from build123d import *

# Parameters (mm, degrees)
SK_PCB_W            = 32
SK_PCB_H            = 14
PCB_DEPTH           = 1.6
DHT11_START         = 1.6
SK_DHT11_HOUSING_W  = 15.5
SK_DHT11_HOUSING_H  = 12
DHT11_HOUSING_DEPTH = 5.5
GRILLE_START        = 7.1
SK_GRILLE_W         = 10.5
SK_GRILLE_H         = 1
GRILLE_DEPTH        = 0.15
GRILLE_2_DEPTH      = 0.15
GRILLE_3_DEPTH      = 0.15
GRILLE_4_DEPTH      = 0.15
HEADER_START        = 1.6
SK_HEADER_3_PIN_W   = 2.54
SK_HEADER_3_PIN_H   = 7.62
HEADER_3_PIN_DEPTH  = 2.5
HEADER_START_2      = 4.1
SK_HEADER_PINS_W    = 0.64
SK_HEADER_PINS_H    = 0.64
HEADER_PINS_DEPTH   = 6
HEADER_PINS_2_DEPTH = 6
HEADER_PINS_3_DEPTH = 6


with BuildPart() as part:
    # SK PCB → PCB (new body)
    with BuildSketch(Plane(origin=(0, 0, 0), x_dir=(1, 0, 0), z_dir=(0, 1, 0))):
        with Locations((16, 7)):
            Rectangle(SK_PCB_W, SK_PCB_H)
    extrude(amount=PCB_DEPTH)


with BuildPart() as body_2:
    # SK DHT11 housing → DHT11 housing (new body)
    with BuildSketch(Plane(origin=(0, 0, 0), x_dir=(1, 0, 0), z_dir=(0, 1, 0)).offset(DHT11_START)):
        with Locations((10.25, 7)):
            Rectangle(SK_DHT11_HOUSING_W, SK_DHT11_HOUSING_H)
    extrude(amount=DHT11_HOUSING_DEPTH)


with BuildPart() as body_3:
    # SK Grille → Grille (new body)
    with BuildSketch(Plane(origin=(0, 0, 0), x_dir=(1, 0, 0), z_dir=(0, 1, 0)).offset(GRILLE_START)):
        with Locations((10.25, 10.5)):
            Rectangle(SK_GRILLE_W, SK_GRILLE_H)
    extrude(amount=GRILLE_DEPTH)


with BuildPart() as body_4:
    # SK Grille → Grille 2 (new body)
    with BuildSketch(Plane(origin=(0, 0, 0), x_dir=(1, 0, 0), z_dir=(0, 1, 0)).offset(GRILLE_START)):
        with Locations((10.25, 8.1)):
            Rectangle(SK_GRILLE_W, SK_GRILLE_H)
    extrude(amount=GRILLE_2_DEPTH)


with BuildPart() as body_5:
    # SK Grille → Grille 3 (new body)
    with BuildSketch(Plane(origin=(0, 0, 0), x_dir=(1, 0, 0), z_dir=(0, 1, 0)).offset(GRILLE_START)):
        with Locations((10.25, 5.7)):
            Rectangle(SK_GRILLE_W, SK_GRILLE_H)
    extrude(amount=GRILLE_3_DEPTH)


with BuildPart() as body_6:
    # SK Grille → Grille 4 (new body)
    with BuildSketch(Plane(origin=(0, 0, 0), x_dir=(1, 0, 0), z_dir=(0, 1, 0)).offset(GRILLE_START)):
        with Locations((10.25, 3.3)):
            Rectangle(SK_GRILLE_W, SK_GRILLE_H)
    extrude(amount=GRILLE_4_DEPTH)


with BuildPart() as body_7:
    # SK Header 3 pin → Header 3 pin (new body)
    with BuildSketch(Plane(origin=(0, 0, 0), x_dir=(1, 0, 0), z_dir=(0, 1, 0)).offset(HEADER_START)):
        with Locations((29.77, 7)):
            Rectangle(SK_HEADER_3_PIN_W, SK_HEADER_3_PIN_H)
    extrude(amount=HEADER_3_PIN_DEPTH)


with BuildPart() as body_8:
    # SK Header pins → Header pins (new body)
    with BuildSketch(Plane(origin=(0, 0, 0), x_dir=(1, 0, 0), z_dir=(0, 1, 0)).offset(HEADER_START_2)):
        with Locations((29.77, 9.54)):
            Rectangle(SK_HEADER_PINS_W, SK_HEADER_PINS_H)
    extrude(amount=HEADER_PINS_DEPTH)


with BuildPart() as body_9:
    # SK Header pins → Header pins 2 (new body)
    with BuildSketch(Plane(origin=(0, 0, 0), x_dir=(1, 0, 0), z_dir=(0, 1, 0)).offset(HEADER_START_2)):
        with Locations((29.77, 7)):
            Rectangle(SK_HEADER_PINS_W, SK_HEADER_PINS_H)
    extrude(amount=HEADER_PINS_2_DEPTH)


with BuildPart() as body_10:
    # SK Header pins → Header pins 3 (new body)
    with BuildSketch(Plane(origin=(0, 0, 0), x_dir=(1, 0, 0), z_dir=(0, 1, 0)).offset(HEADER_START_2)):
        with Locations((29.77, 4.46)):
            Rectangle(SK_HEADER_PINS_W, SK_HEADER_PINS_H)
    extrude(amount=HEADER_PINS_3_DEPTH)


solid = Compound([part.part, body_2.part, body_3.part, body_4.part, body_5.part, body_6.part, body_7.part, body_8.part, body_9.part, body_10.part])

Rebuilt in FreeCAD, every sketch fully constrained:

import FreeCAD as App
import Part
import Sketcher
from FreeCAD import Vector
Q = App.Units.Quantity

doc = App.newDocument("Part")
params = doc.addObject("Spreadsheet::Sheet", "Params")
for row, (alias, value) in enumerate([
    ("sketch1_width", "32 mm"),
    ("sketch1_height", "14 mm"),
    ("pad1_length", "1.6 mm"),
    ("sketch2_height", "12 mm"),
    ("sketch2_width", "15.5 mm"),
    ("pad2_length", "5.5 mm"),
    ("sketch3_height", "1 mm"),
    ("sketch3_width", "10.5 mm"),
    ("pad3_length", "0.15 mm"),
    ("sketch4_height", "1 mm"),
    ("sketch4_width", "10.5 mm"),
    ("pad4_length", "0.15 mm"),
    ("sketch5_height", "1 mm"),
    ("sketch5_width", "10.5 mm"),
    ("pad5_length", "0.15 mm"),
    ("sketch6_height", "1 mm"),
    ("sketch6_width", "10.5 mm"),
    ("pad6_length", "0.15 mm"),
    ("sketch7_width", "2.54 mm"),
    ("sketch7_height", "7.62 mm"),
    ("pad7_length", "2.5 mm"),
    ("sketch8_width", "0.64 mm"),
    ("pad8_length", "6 mm"),
    ("sketch9_width", "0.64 mm"),
    ("pad9_length", "6 mm"),
    ("sketch10_width", "0.64 mm"),
    ("pad10_length", "6 mm"),
], start=1):
    params.set(f"A{row}", alias)
    params.set(f"B{row}", "=" + value)
    params.setAlias(f"B{row}", alias)

body = doc.addObject("PartDesign::Body", "Body")

# Sketch on XZ plane
sketch1 = body.newObject("Sketcher::SketchObject", "Sketch")
sketch1.AttachmentSupport = (doc.getObject("XZ_Plane"), [""])
sketch1.MapMode = "FlatFace"
sketch1.addGeometry([
    Part.LineSegment(Vector(0, -14, 0), Vector(0, 0, 0)),
    Part.LineSegment(Vector(0, 0, 0), Vector(32, 0, 0)),
    Part.LineSegment(Vector(32, 0, 0), Vector(32, -14, 0)),
    Part.LineSegment(Vector(32, -14, 0), Vector(0, -14, 0)),
], False)
sketch1.addConstraint([
    Sketcher.Constraint("Coincident", 0, 2, 1, 1),
    Sketcher.Constraint("Coincident", 1, 2, 2, 1),
    Sketcher.Constraint("Coincident", 2, 2, 3, 1),
    Sketcher.Constraint("Coincident", 3, 2, 0, 1),
    Sketcher.Constraint("Vertical", 0),
    Sketcher.Constraint("Horizontal", 1),
    Sketcher.Constraint("Vertical", 2),
    Sketcher.Constraint("Horizontal", 3),
    Sketcher.Constraint("Coincident", 0, 2, -1, 1),
    Sketcher.Constraint("DistanceX", 1, 1, 1, 2, Q("32 mm")),
    Sketcher.Constraint("DistanceY", 0, 1, 0, 2, Q("14 mm")),
])
sketch1.setExpression("Constraints[9]", "Params.sketch1_width")
sketch1.setExpression("Constraints[10]", "Params.sketch1_height")
pad1 = body.newObject("PartDesign::Pad", "Pad")
pad1.Profile = sketch1
pad1.setExpression("Length", "Params.pad1_length")
pad1.Reversed = True
body2 = doc.addObject("PartDesign::Body", "Body001")

# Sketch on XZ plane
sketch2 = body2.newObject("Sketcher::SketchObject", "Sketch001")
sketch2.AttachmentSupport = (doc.getObject("XZ_Plane001"), [""])
sketch2.MapMode = "FlatFace"
sketch2.AttachmentOffset = App.Placement(Vector(0, 0, -1.6), App.Rotation())
sketch2.addGeometry([
    Part.LineSegment(Vector(2, -13, 0), Vector(2, -1, 0)),
    Part.LineSegment(Vector(2, -1, 0), Vector(18, -1, 0)),
    Part.LineSegment(Vector(18, -1, 0), Vector(18, -13, 0)),
    Part.LineSegment(Vector(18, -13, 0), Vector(2, -13, 0)),
], False)
sketch2.addConstraint([
    Sketcher.Constraint("Coincident", 0, 2, 1, 1),
    Sketcher.Constraint("Coincident", 1, 2, 2, 1),
    Sketcher.Constraint("Coincident", 2, 2, 3, 1),
    Sketcher.Constraint("Coincident", 3, 2, 0, 1),
    Sketcher.Constraint("Vertical", 0),
    Sketcher.Constraint("Horizontal", 1),
    Sketcher.Constraint("Vertical", 2),
    Sketcher.Constraint("Horizontal", 3),
    Sketcher.Constraint("DistanceY", 0, 1, 0, 2, Q("12 mm")),
    Sketcher.Constraint("DistanceX", 1, 1, 1, 2, Q("15.5 mm")),
    Sketcher.Constraint("DistanceY", 0, 2, -1, 1, Q("1 mm")),
    Sketcher.Constraint("DistanceX", -1, 1, 1, 2, Q("18 mm")),
])
sketch2.setExpression("Constraints[8]", "Params.sketch2_height")
sketch2.setExpression("Constraints[9]", "Params.sketch2_width")
pad2 = body2.newObject("PartDesign::Pad", "Pad001")
pad2.Profile = sketch2
pad2.setExpression("Length", "Params.pad2_length")
pad2.Reversed = True
body3 = doc.addObject("PartDesign::Body", "Body002")

# Sketch on XZ plane
sketch3 = body3.newObject("Sketcher::SketchObject", "Sketch002")
sketch3.AttachmentSupport = (doc.getObject("XZ_Plane002"), [""])
sketch3.MapMode = "FlatFace"
sketch3.AttachmentOffset = App.Placement(Vector(0, 0, -7.1), App.Rotation())
sketch3.addGeometry([
    Part.LineSegment(Vector(5, -11, 0), Vector(5, -10, 0)),
    Part.LineSegment(Vector(5, -10, 0), Vector(15.5, -10, 0)),
    Part.LineSegment(Vector(15.5, -10, 0), Vector(15.5, -11, 0)),
    Part.LineSegment(Vector(15.5, -11, 0), Vector(5, -11, 0)),
], False)
sketch3.addConstraint([
    Sketcher.Constraint("Coincident", 0, 2, 1, 1),
    Sketcher.Constraint("Coincident", 1, 2, 2, 1),
    Sketcher.Constraint("Coincident", 2, 2, 3, 1),
    Sketcher.Constraint("Coincident", 3, 2, 0, 1),
    Sketcher.Constraint("Vertical", 0),
    Sketcher.Constraint("Horizontal", 1),
    Sketcher.Constraint("Vertical", 2),
    Sketcher.Constraint("Horizontal", 3),
    Sketcher.Constraint("DistanceY", 0, 1, 0, 2, Q("1 mm")),
    Sketcher.Constraint("DistanceX", 1, 1, 1, 2, Q("10.5 mm")),
    Sketcher.Constraint("DistanceX", -1, 1, 0, 2, Q("5 mm")),
    Sketcher.Constraint("DistanceY", 0, 2, -1, 1, Q("10 mm")),
])
sketch3.setExpression("Constraints[8]", "Params.sketch3_height")
sketch3.setExpression("Constraints[9]", "Params.sketch3_width")
pad3 = body3.newObject("PartDesign::Pad", "Pad002")
pad3.Profile = sketch3
pad3.setExpression("Length", "Params.pad3_length")
pad3.Reversed = True
body4 = doc.addObject("PartDesign::Body", "Body003")

# Sketch on XZ plane
sketch4 = body4.newObject("Sketcher::SketchObject", "Sketch003")
sketch4.AttachmentSupport = (doc.getObject("XZ_Plane003"), [""])
sketch4.MapMode = "FlatFace"
sketch4.AttachmentOffset = App.Placement(Vector(0, 0, -7.1), App.Rotation())
sketch4.addGeometry([
    Part.LineSegment(Vector(5, -8.6, 0), Vector(5, -7.6, 0)),
    Part.LineSegment(Vector(5, -7.6, 0), Vector(15.5, -7.6, 0)),
    Part.LineSegment(Vector(15.5, -7.6, 0), Vector(15.5, -8.6, 0)),
    Part.LineSegment(Vector(15.5, -8.6, 0), Vector(5, -8.6, 0)),
], False)
sketch4.addConstraint([
    Sketcher.Constraint("Coincident", 0, 2, 1, 1),
    Sketcher.Constraint("Coincident", 1, 2, 2, 1),
    Sketcher.Constraint("Coincident", 2, 2, 3, 1),
    Sketcher.Constraint("Coincident", 3, 2, 0, 1),
    Sketcher.Constraint("Vertical", 0),
    Sketcher.Constraint("Horizontal", 1),
    Sketcher.Constraint("Vertical", 2),
    Sketcher.Constraint("Horizontal", 3),
    Sketcher.Constraint("DistanceY", 0, 1, 0, 2, Q("1 mm")),
    Sketcher.Constraint("DistanceX", 1, 1, 1, 2, Q("10.5 mm")),
    Sketcher.Constraint("DistanceX", -1, 1, 0, 2, Q("5 mm")),
    Sketcher.Constraint("DistanceY", 0, 2, -1, 1, Q("7.6 mm")),
])
sketch4.setExpression("Constraints[8]", "Params.sketch4_height")
sketch4.setExpression("Constraints[9]", "Params.sketch4_width")
pad4 = body4.newObject("PartDesign::Pad", "Pad003")
pad4.Profile = sketch4
pad4.setExpression("Length", "Params.pad4_length")
pad4.Reversed = True
body5 = doc.addObject("PartDesign::Body", "Body004")

# Sketch on XZ plane
sketch5 = body5.newObject("Sketcher::SketchObject", "Sketch004")
sketch5.AttachmentSupport = (doc.getObject("XZ_Plane004"), [""])
sketch5.MapMode = "FlatFace"
sketch5.AttachmentOffset = App.Placement(Vector(0, 0, -7.1), App.Rotation())
sketch5.addGeometry([
    Part.LineSegment(Vector(5, -6.2, 0), Vector(5, -5.2, 0)),
    Part.LineSegment(Vector(5, -5.2, 0), Vector(15.5, -5.2, 0)),
    Part.LineSegment(Vector(15.5, -5.2, 0), Vector(15.5, -6.2, 0)),
    Part.LineSegment(Vector(15.5, -6.2, 0), Vector(5, -6.2, 0)),
], False)
sketch5.addConstraint([
    Sketcher.Constraint("Coincident", 0, 2, 1, 1),
    Sketcher.Constraint("Coincident", 1, 2, 2, 1),
    Sketcher.Constraint("Coincident", 2, 2, 3, 1),
    Sketcher.Constraint("Coincident", 3, 2, 0, 1),
    Sketcher.Constraint("Vertical", 0),
    Sketcher.Constraint("Horizontal", 1),
    Sketcher.Constraint("Vertical", 2),
    Sketcher.Constraint("Horizontal", 3),
    Sketcher.Constraint("DistanceY", 0, 1, 0, 2, Q("1 mm")),
    Sketcher.Constraint("DistanceX", 1, 1, 1, 2, Q("10.5 mm")),
    Sketcher.Constraint("DistanceX", -1, 1, 0, 2, Q("5 mm")),
    Sketcher.Constraint("DistanceY", 0, 2, -1, 1, Q("5.2 mm")),
])
sketch5.setExpression("Constraints[8]", "Params.sketch5_height")
sketch5.setExpression("Constraints[9]", "Params.sketch5_width")
pad5 = body5.newObject("PartDesign::Pad", "Pad004")
pad5.Profile = sketch5
pad5.setExpression("Length", "Params.pad5_length")
pad5.Reversed = True
body6 = doc.addObject("PartDesign::Body", "Body005")

# Sketch on XZ plane
sketch6 = body6.newObject("Sketcher::SketchObject", "Sketch005")
sketch6.AttachmentSupport = (doc.getObject("XZ_Plane005"), [""])
sketch6.MapMode = "FlatFace"
sketch6.AttachmentOffset = App.Placement(Vector(0, 0, -7.1), App.Rotation())
sketch6.addGeometry([
    Part.LineSegment(Vector(5, -3.8, 0), Vector(5, -2.8, 0)),
    Part.LineSegment(Vector(5, -2.8, 0), Vector(15.5, -2.8, 0)),
    Part.LineSegment(Vector(15.5, -2.8, 0), Vector(15.5, -3.8, 0)),
    Part.LineSegment(Vector(15.5, -3.8, 0), Vector(5, -3.8, 0)),
], False)
sketch6.addConstraint([
    Sketcher.Constraint("Coincident", 0, 2, 1, 1),
    Sketcher.Constraint("Coincident", 1, 2, 2, 1),
    Sketcher.Constraint("Coincident", 2, 2, 3, 1),
    Sketcher.Constraint("Coincident", 3, 2, 0, 1),
    Sketcher.Constraint("Vertical", 0),
    Sketcher.Constraint("Horizontal", 1),
    Sketcher.Constraint("Vertical", 2),
    Sketcher.Constraint("Horizontal", 3),
    Sketcher.Constraint("DistanceY", 0, 1, 0, 2, Q("1 mm")),
    Sketcher.Constraint("DistanceX", 1, 1, 1, 2, Q("10.5 mm")),
    Sketcher.Constraint("DistanceX", -1, 1, 0, 2, Q("5 mm")),
    Sketcher.Constraint("DistanceY", 0, 2, -1, 1, Q("2.8 mm")),
])
sketch6.setExpression("Constraints[8]", "Params.sketch6_height")
sketch6.setExpression("Constraints[9]", "Params.sketch6_width")
pad6 = body6.newObject("PartDesign::Pad", "Pad005")
pad6.Profile = sketch6
pad6.setExpression("Length", "Params.pad6_length")
pad6.Reversed = True
body7 = doc.addObject("PartDesign::Body", "Body006")

# Sketch on XZ plane
sketch7 = body7.newObject("Sketcher::SketchObject", "Sketch006")
sketch7.AttachmentSupport = (doc.getObject("XZ_Plane006"), [""])
sketch7.MapMode = "FlatFace"
sketch7.AttachmentOffset = App.Placement(Vector(0, 0, -1.6), App.Rotation())
sketch7.addGeometry([
    Part.LineSegment(Vector(28.5, -10.8, 0), Vector(28.5, -3.2, 0)),
    Part.LineSegment(Vector(28.5, -3.2, 0), Vector(31, -3.2, 0)),
    Part.LineSegment(Vector(31, -3.2, 0), Vector(31, -10.8, 0)),
    Part.LineSegment(Vector(31, -10.8, 0), Vector(28.5, -10.8, 0)),
], False)
sketch7.addConstraint([
    Sketcher.Constraint("Coincident", 0, 2, 1, 1),
    Sketcher.Constraint("Coincident", 1, 2, 2, 1),
    Sketcher.Constraint("Coincident", 2, 2, 3, 1),
    Sketcher.Constraint("Coincident", 3, 2, 0, 1),
    Sketcher.Constraint("Vertical", 0),
    Sketcher.Constraint("Horizontal", 1),
    Sketcher.Constraint("Vertical", 2),
    Sketcher.Constraint("Horizontal", 3),
    Sketcher.Constraint("DistanceX", 1, 1, 1, 2, Q("2.54 mm")),
    Sketcher.Constraint("DistanceY", 0, 1, 0, 2, Q("7.62 mm")),
    Sketcher.Constraint("DistanceX", -1, 1, 0, 2, Q("28.5 mm")),
    Sketcher.Constraint("DistanceY", 0, 2, -1, 1, Q("3.19 mm")),
])
sketch7.setExpression("Constraints[8]", "Params.sketch7_width")
sketch7.setExpression("Constraints[9]", "Params.sketch7_height")
pad7 = body7.newObject("PartDesign::Pad", "Pad006")
pad7.Profile = sketch7
pad7.setExpression("Length", "Params.pad7_length")
pad7.Reversed = True
body8 = doc.addObject("PartDesign::Body", "Body007")

# Sketch on XZ plane
sketch8 = body8.newObject("Sketcher::SketchObject", "Sketch007")
sketch8.AttachmentSupport = (doc.getObject("XZ_Plane007"), [""])
sketch8.MapMode = "FlatFace"
sketch8.AttachmentOffset = App.Placement(Vector(0, 0, -4.1), App.Rotation())
sketch8.addGeometry([
    Part.LineSegment(Vector(29.4, -9.9, 0), Vector(29.4, -9.2, 0)),
    Part.LineSegment(Vector(29.4, -9.2, 0), Vector(30.1, -9.2, 0)),
    Part.LineSegment(Vector(30.1, -9.2, 0), Vector(30.1, -9.9, 0)),
    Part.LineSegment(Vector(30.1, -9.9, 0), Vector(29.4, -9.9, 0)),
], False)
sketch8.addConstraint([
    Sketcher.Constraint("Coincident", 0, 2, 1, 1),
    Sketcher.Constraint("Coincident", 1, 2, 2, 1),
    Sketcher.Constraint("Coincident", 2, 2, 3, 1),
    Sketcher.Constraint("Coincident", 3, 2, 0, 1),
    Sketcher.Constraint("Vertical", 0),
    Sketcher.Constraint("Horizontal", 1),
    Sketcher.Constraint("Vertical", 2),
    Sketcher.Constraint("Horizontal", 3),
    Sketcher.Constraint("Equal", 3, 0),
    Sketcher.Constraint("DistanceX", 1, 1, 1, 2, Q("0.64 mm")),
    Sketcher.Constraint("DistanceX", -1, 1, 0, 2, Q("29.45 mm")),
    Sketcher.Constraint("DistanceY", 0, 2, -1, 1, Q("9.22 mm")),
])
sketch8.setExpression("Constraints[9]", "Params.sketch8_width")
pad8 = body8.newObject("PartDesign::Pad", "Pad007")
pad8.Profile = sketch8
pad8.setExpression("Length", "Params.pad8_length")
pad8.Reversed = True
body9 = doc.addObject("PartDesign::Body", "Body008")

# Sketch on XZ plane
sketch9 = body9.newObject("Sketcher::SketchObject", "Sketch008")
sketch9.AttachmentSupport = (doc.getObject("XZ_Plane008"), [""])
sketch9.MapMode = "FlatFace"
sketch9.AttachmentOffset = App.Placement(Vector(0, 0, -4.1), App.Rotation())
sketch9.addGeometry([
    Part.LineSegment(Vector(29.4, -7.3, 0), Vector(29.4, -6.7, 0)),
    Part.LineSegment(Vector(29.4, -6.7, 0), Vector(30.1, -6.7, 0)),
    Part.LineSegment(Vector(30.1, -6.7, 0), Vector(30.1, -7.3, 0)),
    Part.LineSegment(Vector(30.1, -7.3, 0), Vector(29.4, -7.3, 0)),
], False)
sketch9.addConstraint([
    Sketcher.Constraint("Coincident", 0, 2, 1, 1),
    Sketcher.Constraint("Coincident", 1, 2, 2, 1),
    Sketcher.Constraint("Coincident", 2, 2, 3, 1),
    Sketcher.Constraint("Coincident", 3, 2, 0, 1),
    Sketcher.Constraint("Vertical", 0),
    Sketcher.Constraint("Horizontal", 1),
    Sketcher.Constraint("Vertical", 2),
    Sketcher.Constraint("Horizontal", 3),
    Sketcher.Constraint("Equal", 3, 0),
    Sketcher.Constraint("DistanceX", 1, 1, 1, 2, Q("0.64 mm")),
    Sketcher.Constraint("DistanceX", -1, 1, 0, 2, Q("29.45 mm")),
    Sketcher.Constraint("DistanceY", 0, 2, -1, 1, Q("6.68 mm")),
])
sketch9.setExpression("Constraints[9]", "Params.sketch9_width")
pad9 = body9.newObject("PartDesign::Pad", "Pad008")
pad9.Profile = sketch9
pad9.setExpression("Length", "Params.pad9_length")
pad9.Reversed = True
body10 = doc.addObject("PartDesign::Body", "Body009")

# Sketch on XZ plane
sketch10 = body10.newObject("Sketcher::SketchObject", "Sketch009")
sketch10.AttachmentSupport = (doc.getObject("XZ_Plane009"), [""])
sketch10.MapMode = "FlatFace"
sketch10.AttachmentOffset = App.Placement(Vector(0, 0, -4.1), App.Rotation())
sketch10.addGeometry([
    Part.LineSegment(Vector(29.4, -4.8, 0), Vector(29.4, -4.1, 0)),
    Part.LineSegment(Vector(29.4, -4.1, 0), Vector(30.1, -4.1, 0)),
    Part.LineSegment(Vector(30.1, -4.1, 0), Vector(30.1, -4.8, 0)),
    Part.LineSegment(Vector(30.1, -4.8, 0), Vector(29.4, -4.8, 0)),
], False)
sketch10.addConstraint([
    Sketcher.Constraint("Coincident", 0, 2, 1, 1),
    Sketcher.Constraint("Coincident", 1, 2, 2, 1),
    Sketcher.Constraint("Coincident", 2, 2, 3, 1),
    Sketcher.Constraint("Coincident", 3, 2, 0, 1),
    Sketcher.Constraint("Vertical", 0),
    Sketcher.Constraint("Horizontal", 1),
    Sketcher.Constraint("Vertical", 2),
    Sketcher.Constraint("Horizontal", 3),
    Sketcher.Constraint("Equal", 3, 0),
    Sketcher.Constraint("DistanceX", 1, 1, 1, 2, Q("0.64 mm")),
    Sketcher.Constraint("DistanceX", -1, 1, 0, 2, Q("29.45 mm")),
    Sketcher.Constraint("DistanceY", 0, 2, -1, 1, Q("4.14 mm")),
])
sketch10.setExpression("Constraints[9]", "Params.sketch10_width")
pad10 = body10.newObject("PartDesign::Pad", "Pad009")
pad10.Profile = sketch10
pad10.setExpression("Length", "Params.pad10_length")
pad10.Reversed = True

doc.recompute()
